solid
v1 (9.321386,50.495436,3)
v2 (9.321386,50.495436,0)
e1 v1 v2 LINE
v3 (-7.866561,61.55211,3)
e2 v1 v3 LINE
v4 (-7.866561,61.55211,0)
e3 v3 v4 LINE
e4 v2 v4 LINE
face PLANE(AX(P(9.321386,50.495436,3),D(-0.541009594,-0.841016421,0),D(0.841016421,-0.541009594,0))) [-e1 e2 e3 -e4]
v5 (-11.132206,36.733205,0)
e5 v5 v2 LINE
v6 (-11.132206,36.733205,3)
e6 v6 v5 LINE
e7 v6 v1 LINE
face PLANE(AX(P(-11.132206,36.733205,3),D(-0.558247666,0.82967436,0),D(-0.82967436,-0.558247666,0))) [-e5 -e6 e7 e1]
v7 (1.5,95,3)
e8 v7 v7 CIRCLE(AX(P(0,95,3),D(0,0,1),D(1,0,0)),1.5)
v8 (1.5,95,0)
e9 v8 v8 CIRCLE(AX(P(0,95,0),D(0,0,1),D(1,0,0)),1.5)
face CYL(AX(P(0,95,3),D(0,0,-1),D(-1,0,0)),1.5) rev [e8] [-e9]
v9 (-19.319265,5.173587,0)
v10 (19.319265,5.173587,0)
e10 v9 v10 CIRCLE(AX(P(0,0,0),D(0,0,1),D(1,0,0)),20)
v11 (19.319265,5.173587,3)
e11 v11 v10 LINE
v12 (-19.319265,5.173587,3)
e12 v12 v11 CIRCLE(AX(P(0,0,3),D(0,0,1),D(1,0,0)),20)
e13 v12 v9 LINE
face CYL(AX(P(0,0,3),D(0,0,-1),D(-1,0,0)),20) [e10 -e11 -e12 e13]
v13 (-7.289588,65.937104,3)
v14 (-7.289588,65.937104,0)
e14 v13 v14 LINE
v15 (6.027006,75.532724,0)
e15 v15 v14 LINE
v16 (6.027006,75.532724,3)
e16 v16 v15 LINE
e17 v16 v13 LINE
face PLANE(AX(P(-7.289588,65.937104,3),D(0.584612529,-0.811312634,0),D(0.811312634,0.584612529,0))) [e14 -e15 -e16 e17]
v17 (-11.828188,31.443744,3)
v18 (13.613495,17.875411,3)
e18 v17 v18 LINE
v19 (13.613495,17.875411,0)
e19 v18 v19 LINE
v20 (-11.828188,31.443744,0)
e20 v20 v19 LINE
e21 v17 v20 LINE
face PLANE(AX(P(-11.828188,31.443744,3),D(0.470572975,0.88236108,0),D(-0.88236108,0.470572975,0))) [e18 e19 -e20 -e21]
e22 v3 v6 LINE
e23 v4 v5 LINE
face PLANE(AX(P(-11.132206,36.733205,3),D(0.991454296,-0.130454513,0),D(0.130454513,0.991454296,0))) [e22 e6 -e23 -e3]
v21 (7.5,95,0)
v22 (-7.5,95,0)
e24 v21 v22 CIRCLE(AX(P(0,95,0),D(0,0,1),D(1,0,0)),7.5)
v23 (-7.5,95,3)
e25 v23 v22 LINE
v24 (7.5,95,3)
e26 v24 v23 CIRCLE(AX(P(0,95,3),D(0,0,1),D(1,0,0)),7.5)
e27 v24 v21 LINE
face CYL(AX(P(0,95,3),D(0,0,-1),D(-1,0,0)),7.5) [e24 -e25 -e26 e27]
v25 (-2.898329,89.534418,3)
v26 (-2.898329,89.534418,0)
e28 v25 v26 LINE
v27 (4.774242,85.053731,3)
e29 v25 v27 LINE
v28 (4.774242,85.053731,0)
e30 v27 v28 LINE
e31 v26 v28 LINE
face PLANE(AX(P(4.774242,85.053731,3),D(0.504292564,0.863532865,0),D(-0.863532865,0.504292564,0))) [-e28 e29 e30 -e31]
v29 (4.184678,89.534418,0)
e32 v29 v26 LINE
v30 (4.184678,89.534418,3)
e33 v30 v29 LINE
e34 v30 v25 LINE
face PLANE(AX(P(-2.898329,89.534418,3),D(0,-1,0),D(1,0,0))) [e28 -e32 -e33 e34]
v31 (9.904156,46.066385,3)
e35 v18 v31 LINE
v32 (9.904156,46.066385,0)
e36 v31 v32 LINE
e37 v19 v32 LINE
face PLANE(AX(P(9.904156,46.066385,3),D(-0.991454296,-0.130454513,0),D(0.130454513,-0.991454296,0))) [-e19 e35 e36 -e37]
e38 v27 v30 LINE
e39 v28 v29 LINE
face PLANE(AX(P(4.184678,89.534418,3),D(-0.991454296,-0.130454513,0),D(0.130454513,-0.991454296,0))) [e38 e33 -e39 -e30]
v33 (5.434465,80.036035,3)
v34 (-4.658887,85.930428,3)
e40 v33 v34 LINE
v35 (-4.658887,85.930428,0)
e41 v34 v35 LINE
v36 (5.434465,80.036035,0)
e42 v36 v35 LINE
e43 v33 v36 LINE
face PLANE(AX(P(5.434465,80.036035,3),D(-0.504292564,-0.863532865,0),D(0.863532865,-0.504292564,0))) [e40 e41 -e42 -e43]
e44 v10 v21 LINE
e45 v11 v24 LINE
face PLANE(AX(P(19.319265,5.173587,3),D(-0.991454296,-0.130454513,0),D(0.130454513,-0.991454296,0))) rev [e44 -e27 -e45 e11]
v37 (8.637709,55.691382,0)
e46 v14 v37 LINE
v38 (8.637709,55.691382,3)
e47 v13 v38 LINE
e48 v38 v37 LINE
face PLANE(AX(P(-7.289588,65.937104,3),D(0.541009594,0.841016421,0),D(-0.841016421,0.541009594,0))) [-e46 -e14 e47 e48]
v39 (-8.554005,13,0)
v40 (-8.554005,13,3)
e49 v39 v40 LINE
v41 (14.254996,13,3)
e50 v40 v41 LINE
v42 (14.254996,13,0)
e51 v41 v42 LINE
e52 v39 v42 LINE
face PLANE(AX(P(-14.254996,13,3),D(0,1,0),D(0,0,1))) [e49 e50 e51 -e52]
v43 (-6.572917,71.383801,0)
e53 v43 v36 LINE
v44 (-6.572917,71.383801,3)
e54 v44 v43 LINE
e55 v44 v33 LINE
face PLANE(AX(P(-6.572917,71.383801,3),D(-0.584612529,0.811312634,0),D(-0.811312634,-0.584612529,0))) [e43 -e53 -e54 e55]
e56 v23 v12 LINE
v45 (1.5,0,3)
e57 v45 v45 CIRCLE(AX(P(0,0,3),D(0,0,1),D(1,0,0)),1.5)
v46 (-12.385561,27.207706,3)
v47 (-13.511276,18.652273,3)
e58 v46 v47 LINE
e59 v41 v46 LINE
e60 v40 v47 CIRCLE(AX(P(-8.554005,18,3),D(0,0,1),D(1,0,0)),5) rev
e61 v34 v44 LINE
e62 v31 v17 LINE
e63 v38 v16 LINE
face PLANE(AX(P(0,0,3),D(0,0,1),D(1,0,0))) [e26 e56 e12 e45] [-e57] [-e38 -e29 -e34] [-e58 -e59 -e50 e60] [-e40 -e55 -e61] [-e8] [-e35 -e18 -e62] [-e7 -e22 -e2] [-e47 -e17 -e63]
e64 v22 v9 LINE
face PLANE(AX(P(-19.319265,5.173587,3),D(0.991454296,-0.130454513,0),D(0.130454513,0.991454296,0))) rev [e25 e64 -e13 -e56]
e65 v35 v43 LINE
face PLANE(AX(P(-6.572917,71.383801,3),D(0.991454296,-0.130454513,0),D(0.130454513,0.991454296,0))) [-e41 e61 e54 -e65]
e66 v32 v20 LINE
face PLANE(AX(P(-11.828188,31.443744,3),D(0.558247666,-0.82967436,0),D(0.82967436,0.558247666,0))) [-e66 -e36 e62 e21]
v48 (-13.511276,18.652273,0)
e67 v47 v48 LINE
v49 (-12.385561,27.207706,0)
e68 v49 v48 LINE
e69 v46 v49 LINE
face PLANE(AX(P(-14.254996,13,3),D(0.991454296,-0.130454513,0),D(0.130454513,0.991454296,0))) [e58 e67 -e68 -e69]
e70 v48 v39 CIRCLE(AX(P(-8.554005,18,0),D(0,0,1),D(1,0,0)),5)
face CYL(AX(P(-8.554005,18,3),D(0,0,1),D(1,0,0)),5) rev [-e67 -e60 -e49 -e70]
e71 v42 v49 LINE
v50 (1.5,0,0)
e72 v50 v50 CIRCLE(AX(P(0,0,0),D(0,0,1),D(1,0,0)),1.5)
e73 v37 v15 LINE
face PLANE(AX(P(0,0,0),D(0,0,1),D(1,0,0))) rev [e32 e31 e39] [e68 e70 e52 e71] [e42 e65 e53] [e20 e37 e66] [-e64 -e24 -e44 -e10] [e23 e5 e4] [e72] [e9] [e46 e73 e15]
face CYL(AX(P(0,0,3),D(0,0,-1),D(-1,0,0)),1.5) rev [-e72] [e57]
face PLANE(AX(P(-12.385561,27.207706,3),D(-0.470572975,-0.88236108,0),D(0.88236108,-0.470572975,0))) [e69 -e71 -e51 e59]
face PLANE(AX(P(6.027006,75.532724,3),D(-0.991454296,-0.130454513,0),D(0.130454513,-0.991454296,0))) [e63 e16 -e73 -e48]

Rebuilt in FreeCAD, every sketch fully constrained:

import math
import FreeCAD as App
import Part
import Sketcher
from FreeCAD import Vector
Q = App.Units.Quantity


def edges_at(feature, points):
    """Names of the edges that pass closest to the given points."""
    edges = feature.Shape.Edges
    near = lambda p: min(range(len(edges)), key=lambda i: edges[i].distToShape(Part.Vertex(*p))[0])
    return sorted({f"Edge{near(p) + 1}" for p in points})

doc = App.newDocument("Part")
body = doc.addObject("PartDesign::Body", "Body")

# Sketch on XY plane
sketch1 = body.newObject("Sketcher::SketchObject", "Sketch")
sketch1.AttachmentSupport = (doc.getObject("XY_Plane"), [""])
sketch1.MapMode = "FlatFace"
sketch1.addGeometry([
    Part.LineSegment(Vector(-7.5, 95, 0), Vector(-19.3, 5.2, 0)),  # 0
    Part.ArcOfCircle(Part.Circle(Vector(0, 0, 0), Vector(0, 0, 1), 20), math.radians(165), math.radians(375)),  # 1
    Part.LineSegment(Vector(19.3, 5.2, 0), Vector(7.5, 95, 0)),  # 2
    Part.ArcOfCircle(Part.Circle(Vector(0, 95, 0), Vector(0, 0, 1), 7.5), math.radians(0), math.radians(180)),  # 3
    Part.LineSegment(Vector(-11.8, 31.4, 0), Vector(9.9, 46.1, 0)),  # 4
    Part.LineSegment(Vector(9.9, 46.1, 0), Vector(13.6, 17.9, 0)),  # 5
    Part.LineSegment(Vector(13.6, 17.9, 0), Vector(-11.8, 31.4, 0)),  # 6
    Part.Circle(Vector(0, 0, 0), Vector(0, 0, 1), 1.5),  # 7
    Part.LineSegment(Vector(-14.3, 13, 0), Vector(-12.4, 27.2, 0)),  # 8
    Part.LineSegment(Vector(-12.4, 27.2, 0), Vector(14.3, 13, 0)),  # 9
    Part.LineSegment(Vector(14.3, 13, 0), Vector(-14.3, 13, 0)),  # 10
    Part.LineSegment(Vector(-7.3, 65.9, 0), Vector(6, 75.5, 0)),  # 11
    Part.LineSegment(Vector(6, 75.5, 0), Vector(8.6, 55.7, 0)),  # 12
    Part.LineSegment(Vector(8.6, 55.7, 0), Vector(-7.3, 65.9, 0)),  # 13
    Part.LineSegment(Vector(-2.9, 89.5, 0), Vector(4.2, 89.5, 0)),  # 14
    Part.LineSegment(Vector(4.2, 89.5, 0), Vector(4.8, 85.1, 0)),  # 15
    Part.LineSegment(Vector(4.8, 85.1, 0), Vector(-2.9, 89.5, 0)),  # 16
    Part.LineSegment(Vector(-11.1, 36.7, 0), Vector(-7.9, 61.6, 0)),  # 17
    Part.LineSegment(Vector(-7.9, 61.6, 0), Vector(9.3, 50.5, 0)),  # 18
    Part.LineSegment(Vector(9.3, 50.5, 0), Vector(-11.1, 36.7, 0)),  # 19
    Part.LineSegment(Vector(-6.6, 71.4, 0), Vector(-4.7, 85.9, 0)),  # 20
    Part.LineSegment(Vector(-4.7, 85.9, 0), Vector(5.4, 80, 0)),  # 21
    Part.LineSegment(Vector(5.4, 80, 0), Vector(-6.6, 71.4, 0)),  # 22
    Part.Circle(Vector(0, 95, 0), Vector(0, 0, 1), 1.5),  # 23
], False)
sketch1.addConstraint([
    Sketcher.Constraint("Coincident", 0, 2, 1, 1),
    Sketcher.Constraint("Coincident", 1, 2, 2, 1),
    Sketcher.Constraint("Coincident", 2, 2, 3, 1),
    Sketcher.Constraint("Coincident", 3, 2, 0, 1),
    Sketcher.Constraint("Coincident", 4, 2, 5, 1),
    Sketcher.Constraint("Coincident", 5, 2, 6, 1),
    Sketcher.Constraint("Coincident", 6, 2, 4, 1),
    Sketcher.Constraint("Coincident", 8, 2, 9, 1),
    Sketcher.Constraint("Coincident", 9, 2, 10, 1),
    Sketcher.Constraint("Coincident", 10, 2, 8, 1),
    Sketcher.Constraint("Coincident", 11, 2, 12, 1),
    Sketcher.Constraint("Coincident", 12, 2, 13, 1),
    Sketcher.Constraint("Coincident", 13, 2, 11, 1),
    Sketcher.Constraint("Coincident", 14, 2, 15, 1),
    Sketcher.Constraint("Coincident", 15, 2, 16, 1),
    Sketcher.Constraint("Coincident", 16, 2, 14, 1),
    Sketcher.Constraint("Coincident", 17, 2, 18, 1),
    Sketcher.Constraint("Coincident", 18, 2, 19, 1),
    Sketcher.Constraint("Coincident", 19, 2, 17, 1),
    Sketcher.Constraint("Coincident", 20, 2, 21, 1),
    Sketcher.Constraint("Coincident", 21, 2, 22, 1),
    Sketcher.Constraint("Coincident", 22, 2, 20, 1),
    Sketcher.Constraint("Horizontal", 10),
    Sketcher.Constraint("Horizontal", 14),
    Sketcher.Constraint("Coincident", 1, 3, -1, 1),
    Sketcher.Constraint("Coincident", 7, 3, -1, 1),
    Sketcher.Constraint("Coincident", 23, 3, 3, 3),
    Sketcher.Constraint("Equal", 7, 23),
    Sketcher.Constraint("Symmetric", 2, 2, 3, 2, -2),
    Sketcher.Constraint("Parallel", 2, 5),
    Sketcher.Constraint("Parallel", 0, 8),
    Sketcher.Constraint("Parallel", 6, 9),
    Sketcher.Constraint("Parallel", 5, 12),
    Sketcher.Constraint("Parallel", 12, 15),
    Sketcher.Constraint("Parallel", 8, 17),
    Sketcher.Constraint("Parallel", 13, 18),
    Sketcher.Constraint("Parallel", 4, 19),
    Sketcher.Constraint("Parallel", 17, 20),
    Sketcher.Constraint("Parallel", 16, 21),
    Sketcher.Constraint("Parallel", 11, 22),
    Sketcher.Constraint("Horizontal", 0, 2, 1, 2),
    Sketcher.Constraint("Horizontal", 23, 3, 2, 2),
    Sketcher.Constraint("Diameter", 7, Q("3 mm")),
    Sketcher.Constraint("Radius", 1, Q("20 mm")),
    Sketcher.Constraint("Radius", 3, Q("7.5 mm")),
    Sketcher.Constraint("DistanceY", -1, 1, 3, 3, Q("95 mm")),
    Sketcher.Constraint("DistanceY", -1, 1, 9, 2, Q("13 mm")),
    Sketcher.Constraint("DistanceY", -1, 1, 22, 2, Q("71.383801 mm")),
    Sketcher.Constraint("DistanceX", 5, 2, 9, 2, Q("0.641502 mm")),
    Sketcher.Constraint("DistanceY", 8, 2, 19, 2, Q("9.525499 mm")),
    Sketcher.Constraint("Distance", 0, Q("90.600659 mm")),
    Sketcher.Constraint("Distance", 5, Q("28.433961 mm")),
    Sketcher.Constraint("Distance", 6, Q("28.833641 mm")),
    Sketcher.Constraint("Distance", 11, Q("16.413641 mm")),
    Sketcher.Constraint("Distance", 12, Q("20.012362 mm")),
    Sketcher.Constraint("Distance", 15, Q("4.519308 mm")),
    Sketcher.Constraint("Distance", 17, Q("25.032828 mm")),
    Sketcher.Constraint("Distance", 20, Q("14.67201 mm")),
    Sketcher.Constraint("Distance", 21, Q("11.688441 mm")),
    Sketcher.Constraint("DistanceX", 10, 2, 10, 1, Q("28.509992 mm")),
    Sketcher.Constraint("DistanceX", 14, 1, 14, 2, Q("7.083007 mm")),
    Sketcher.Constraint("DistanceY", -1, 1, 5, 2, Q("17.875411 mm")),
    Sketcher.Constraint("DistanceX", 8, 2, -1, 1, Q("12.385561 mm")),
    Sketcher.Constraint("DistanceX", -1, 1, 12, 2, Q("8.637709 mm")),
    Sketcher.Constraint("DistanceY", -1, 1, 12, 2, Q("55.691382 mm")),
    Sketcher.Constraint("DistanceX", -1, 1, 14, 2, Q("4.184678 mm")),
    Sketcher.Constraint("DistanceY", -1, 1, 14, 2, Q("89.534418 mm")),
    Sketcher.Constraint("DistanceX", 17, 2, -1, 1, Q("7.866561 mm")),
    Sketcher.Constraint("DistanceY", -1, 1, 17, 2, Q("61.55211 mm")),
    Sketcher.Constraint("DistanceX", 20, 2, 15, 2, Q("9.433129 mm")),
])
pad1 = body.newObject("PartDesign::Pad", "Pad")
pad1.Profile = sketch1
pad1.Length = 3
doc.recompute()

fillet = body.newObject("PartDesign::Fillet", "Fillet")
fillet.Base = (pad1, edges_at(pad1, [(-14.255, 13, 1.5)]))
fillet.Radius = 5

doc.recompute()
